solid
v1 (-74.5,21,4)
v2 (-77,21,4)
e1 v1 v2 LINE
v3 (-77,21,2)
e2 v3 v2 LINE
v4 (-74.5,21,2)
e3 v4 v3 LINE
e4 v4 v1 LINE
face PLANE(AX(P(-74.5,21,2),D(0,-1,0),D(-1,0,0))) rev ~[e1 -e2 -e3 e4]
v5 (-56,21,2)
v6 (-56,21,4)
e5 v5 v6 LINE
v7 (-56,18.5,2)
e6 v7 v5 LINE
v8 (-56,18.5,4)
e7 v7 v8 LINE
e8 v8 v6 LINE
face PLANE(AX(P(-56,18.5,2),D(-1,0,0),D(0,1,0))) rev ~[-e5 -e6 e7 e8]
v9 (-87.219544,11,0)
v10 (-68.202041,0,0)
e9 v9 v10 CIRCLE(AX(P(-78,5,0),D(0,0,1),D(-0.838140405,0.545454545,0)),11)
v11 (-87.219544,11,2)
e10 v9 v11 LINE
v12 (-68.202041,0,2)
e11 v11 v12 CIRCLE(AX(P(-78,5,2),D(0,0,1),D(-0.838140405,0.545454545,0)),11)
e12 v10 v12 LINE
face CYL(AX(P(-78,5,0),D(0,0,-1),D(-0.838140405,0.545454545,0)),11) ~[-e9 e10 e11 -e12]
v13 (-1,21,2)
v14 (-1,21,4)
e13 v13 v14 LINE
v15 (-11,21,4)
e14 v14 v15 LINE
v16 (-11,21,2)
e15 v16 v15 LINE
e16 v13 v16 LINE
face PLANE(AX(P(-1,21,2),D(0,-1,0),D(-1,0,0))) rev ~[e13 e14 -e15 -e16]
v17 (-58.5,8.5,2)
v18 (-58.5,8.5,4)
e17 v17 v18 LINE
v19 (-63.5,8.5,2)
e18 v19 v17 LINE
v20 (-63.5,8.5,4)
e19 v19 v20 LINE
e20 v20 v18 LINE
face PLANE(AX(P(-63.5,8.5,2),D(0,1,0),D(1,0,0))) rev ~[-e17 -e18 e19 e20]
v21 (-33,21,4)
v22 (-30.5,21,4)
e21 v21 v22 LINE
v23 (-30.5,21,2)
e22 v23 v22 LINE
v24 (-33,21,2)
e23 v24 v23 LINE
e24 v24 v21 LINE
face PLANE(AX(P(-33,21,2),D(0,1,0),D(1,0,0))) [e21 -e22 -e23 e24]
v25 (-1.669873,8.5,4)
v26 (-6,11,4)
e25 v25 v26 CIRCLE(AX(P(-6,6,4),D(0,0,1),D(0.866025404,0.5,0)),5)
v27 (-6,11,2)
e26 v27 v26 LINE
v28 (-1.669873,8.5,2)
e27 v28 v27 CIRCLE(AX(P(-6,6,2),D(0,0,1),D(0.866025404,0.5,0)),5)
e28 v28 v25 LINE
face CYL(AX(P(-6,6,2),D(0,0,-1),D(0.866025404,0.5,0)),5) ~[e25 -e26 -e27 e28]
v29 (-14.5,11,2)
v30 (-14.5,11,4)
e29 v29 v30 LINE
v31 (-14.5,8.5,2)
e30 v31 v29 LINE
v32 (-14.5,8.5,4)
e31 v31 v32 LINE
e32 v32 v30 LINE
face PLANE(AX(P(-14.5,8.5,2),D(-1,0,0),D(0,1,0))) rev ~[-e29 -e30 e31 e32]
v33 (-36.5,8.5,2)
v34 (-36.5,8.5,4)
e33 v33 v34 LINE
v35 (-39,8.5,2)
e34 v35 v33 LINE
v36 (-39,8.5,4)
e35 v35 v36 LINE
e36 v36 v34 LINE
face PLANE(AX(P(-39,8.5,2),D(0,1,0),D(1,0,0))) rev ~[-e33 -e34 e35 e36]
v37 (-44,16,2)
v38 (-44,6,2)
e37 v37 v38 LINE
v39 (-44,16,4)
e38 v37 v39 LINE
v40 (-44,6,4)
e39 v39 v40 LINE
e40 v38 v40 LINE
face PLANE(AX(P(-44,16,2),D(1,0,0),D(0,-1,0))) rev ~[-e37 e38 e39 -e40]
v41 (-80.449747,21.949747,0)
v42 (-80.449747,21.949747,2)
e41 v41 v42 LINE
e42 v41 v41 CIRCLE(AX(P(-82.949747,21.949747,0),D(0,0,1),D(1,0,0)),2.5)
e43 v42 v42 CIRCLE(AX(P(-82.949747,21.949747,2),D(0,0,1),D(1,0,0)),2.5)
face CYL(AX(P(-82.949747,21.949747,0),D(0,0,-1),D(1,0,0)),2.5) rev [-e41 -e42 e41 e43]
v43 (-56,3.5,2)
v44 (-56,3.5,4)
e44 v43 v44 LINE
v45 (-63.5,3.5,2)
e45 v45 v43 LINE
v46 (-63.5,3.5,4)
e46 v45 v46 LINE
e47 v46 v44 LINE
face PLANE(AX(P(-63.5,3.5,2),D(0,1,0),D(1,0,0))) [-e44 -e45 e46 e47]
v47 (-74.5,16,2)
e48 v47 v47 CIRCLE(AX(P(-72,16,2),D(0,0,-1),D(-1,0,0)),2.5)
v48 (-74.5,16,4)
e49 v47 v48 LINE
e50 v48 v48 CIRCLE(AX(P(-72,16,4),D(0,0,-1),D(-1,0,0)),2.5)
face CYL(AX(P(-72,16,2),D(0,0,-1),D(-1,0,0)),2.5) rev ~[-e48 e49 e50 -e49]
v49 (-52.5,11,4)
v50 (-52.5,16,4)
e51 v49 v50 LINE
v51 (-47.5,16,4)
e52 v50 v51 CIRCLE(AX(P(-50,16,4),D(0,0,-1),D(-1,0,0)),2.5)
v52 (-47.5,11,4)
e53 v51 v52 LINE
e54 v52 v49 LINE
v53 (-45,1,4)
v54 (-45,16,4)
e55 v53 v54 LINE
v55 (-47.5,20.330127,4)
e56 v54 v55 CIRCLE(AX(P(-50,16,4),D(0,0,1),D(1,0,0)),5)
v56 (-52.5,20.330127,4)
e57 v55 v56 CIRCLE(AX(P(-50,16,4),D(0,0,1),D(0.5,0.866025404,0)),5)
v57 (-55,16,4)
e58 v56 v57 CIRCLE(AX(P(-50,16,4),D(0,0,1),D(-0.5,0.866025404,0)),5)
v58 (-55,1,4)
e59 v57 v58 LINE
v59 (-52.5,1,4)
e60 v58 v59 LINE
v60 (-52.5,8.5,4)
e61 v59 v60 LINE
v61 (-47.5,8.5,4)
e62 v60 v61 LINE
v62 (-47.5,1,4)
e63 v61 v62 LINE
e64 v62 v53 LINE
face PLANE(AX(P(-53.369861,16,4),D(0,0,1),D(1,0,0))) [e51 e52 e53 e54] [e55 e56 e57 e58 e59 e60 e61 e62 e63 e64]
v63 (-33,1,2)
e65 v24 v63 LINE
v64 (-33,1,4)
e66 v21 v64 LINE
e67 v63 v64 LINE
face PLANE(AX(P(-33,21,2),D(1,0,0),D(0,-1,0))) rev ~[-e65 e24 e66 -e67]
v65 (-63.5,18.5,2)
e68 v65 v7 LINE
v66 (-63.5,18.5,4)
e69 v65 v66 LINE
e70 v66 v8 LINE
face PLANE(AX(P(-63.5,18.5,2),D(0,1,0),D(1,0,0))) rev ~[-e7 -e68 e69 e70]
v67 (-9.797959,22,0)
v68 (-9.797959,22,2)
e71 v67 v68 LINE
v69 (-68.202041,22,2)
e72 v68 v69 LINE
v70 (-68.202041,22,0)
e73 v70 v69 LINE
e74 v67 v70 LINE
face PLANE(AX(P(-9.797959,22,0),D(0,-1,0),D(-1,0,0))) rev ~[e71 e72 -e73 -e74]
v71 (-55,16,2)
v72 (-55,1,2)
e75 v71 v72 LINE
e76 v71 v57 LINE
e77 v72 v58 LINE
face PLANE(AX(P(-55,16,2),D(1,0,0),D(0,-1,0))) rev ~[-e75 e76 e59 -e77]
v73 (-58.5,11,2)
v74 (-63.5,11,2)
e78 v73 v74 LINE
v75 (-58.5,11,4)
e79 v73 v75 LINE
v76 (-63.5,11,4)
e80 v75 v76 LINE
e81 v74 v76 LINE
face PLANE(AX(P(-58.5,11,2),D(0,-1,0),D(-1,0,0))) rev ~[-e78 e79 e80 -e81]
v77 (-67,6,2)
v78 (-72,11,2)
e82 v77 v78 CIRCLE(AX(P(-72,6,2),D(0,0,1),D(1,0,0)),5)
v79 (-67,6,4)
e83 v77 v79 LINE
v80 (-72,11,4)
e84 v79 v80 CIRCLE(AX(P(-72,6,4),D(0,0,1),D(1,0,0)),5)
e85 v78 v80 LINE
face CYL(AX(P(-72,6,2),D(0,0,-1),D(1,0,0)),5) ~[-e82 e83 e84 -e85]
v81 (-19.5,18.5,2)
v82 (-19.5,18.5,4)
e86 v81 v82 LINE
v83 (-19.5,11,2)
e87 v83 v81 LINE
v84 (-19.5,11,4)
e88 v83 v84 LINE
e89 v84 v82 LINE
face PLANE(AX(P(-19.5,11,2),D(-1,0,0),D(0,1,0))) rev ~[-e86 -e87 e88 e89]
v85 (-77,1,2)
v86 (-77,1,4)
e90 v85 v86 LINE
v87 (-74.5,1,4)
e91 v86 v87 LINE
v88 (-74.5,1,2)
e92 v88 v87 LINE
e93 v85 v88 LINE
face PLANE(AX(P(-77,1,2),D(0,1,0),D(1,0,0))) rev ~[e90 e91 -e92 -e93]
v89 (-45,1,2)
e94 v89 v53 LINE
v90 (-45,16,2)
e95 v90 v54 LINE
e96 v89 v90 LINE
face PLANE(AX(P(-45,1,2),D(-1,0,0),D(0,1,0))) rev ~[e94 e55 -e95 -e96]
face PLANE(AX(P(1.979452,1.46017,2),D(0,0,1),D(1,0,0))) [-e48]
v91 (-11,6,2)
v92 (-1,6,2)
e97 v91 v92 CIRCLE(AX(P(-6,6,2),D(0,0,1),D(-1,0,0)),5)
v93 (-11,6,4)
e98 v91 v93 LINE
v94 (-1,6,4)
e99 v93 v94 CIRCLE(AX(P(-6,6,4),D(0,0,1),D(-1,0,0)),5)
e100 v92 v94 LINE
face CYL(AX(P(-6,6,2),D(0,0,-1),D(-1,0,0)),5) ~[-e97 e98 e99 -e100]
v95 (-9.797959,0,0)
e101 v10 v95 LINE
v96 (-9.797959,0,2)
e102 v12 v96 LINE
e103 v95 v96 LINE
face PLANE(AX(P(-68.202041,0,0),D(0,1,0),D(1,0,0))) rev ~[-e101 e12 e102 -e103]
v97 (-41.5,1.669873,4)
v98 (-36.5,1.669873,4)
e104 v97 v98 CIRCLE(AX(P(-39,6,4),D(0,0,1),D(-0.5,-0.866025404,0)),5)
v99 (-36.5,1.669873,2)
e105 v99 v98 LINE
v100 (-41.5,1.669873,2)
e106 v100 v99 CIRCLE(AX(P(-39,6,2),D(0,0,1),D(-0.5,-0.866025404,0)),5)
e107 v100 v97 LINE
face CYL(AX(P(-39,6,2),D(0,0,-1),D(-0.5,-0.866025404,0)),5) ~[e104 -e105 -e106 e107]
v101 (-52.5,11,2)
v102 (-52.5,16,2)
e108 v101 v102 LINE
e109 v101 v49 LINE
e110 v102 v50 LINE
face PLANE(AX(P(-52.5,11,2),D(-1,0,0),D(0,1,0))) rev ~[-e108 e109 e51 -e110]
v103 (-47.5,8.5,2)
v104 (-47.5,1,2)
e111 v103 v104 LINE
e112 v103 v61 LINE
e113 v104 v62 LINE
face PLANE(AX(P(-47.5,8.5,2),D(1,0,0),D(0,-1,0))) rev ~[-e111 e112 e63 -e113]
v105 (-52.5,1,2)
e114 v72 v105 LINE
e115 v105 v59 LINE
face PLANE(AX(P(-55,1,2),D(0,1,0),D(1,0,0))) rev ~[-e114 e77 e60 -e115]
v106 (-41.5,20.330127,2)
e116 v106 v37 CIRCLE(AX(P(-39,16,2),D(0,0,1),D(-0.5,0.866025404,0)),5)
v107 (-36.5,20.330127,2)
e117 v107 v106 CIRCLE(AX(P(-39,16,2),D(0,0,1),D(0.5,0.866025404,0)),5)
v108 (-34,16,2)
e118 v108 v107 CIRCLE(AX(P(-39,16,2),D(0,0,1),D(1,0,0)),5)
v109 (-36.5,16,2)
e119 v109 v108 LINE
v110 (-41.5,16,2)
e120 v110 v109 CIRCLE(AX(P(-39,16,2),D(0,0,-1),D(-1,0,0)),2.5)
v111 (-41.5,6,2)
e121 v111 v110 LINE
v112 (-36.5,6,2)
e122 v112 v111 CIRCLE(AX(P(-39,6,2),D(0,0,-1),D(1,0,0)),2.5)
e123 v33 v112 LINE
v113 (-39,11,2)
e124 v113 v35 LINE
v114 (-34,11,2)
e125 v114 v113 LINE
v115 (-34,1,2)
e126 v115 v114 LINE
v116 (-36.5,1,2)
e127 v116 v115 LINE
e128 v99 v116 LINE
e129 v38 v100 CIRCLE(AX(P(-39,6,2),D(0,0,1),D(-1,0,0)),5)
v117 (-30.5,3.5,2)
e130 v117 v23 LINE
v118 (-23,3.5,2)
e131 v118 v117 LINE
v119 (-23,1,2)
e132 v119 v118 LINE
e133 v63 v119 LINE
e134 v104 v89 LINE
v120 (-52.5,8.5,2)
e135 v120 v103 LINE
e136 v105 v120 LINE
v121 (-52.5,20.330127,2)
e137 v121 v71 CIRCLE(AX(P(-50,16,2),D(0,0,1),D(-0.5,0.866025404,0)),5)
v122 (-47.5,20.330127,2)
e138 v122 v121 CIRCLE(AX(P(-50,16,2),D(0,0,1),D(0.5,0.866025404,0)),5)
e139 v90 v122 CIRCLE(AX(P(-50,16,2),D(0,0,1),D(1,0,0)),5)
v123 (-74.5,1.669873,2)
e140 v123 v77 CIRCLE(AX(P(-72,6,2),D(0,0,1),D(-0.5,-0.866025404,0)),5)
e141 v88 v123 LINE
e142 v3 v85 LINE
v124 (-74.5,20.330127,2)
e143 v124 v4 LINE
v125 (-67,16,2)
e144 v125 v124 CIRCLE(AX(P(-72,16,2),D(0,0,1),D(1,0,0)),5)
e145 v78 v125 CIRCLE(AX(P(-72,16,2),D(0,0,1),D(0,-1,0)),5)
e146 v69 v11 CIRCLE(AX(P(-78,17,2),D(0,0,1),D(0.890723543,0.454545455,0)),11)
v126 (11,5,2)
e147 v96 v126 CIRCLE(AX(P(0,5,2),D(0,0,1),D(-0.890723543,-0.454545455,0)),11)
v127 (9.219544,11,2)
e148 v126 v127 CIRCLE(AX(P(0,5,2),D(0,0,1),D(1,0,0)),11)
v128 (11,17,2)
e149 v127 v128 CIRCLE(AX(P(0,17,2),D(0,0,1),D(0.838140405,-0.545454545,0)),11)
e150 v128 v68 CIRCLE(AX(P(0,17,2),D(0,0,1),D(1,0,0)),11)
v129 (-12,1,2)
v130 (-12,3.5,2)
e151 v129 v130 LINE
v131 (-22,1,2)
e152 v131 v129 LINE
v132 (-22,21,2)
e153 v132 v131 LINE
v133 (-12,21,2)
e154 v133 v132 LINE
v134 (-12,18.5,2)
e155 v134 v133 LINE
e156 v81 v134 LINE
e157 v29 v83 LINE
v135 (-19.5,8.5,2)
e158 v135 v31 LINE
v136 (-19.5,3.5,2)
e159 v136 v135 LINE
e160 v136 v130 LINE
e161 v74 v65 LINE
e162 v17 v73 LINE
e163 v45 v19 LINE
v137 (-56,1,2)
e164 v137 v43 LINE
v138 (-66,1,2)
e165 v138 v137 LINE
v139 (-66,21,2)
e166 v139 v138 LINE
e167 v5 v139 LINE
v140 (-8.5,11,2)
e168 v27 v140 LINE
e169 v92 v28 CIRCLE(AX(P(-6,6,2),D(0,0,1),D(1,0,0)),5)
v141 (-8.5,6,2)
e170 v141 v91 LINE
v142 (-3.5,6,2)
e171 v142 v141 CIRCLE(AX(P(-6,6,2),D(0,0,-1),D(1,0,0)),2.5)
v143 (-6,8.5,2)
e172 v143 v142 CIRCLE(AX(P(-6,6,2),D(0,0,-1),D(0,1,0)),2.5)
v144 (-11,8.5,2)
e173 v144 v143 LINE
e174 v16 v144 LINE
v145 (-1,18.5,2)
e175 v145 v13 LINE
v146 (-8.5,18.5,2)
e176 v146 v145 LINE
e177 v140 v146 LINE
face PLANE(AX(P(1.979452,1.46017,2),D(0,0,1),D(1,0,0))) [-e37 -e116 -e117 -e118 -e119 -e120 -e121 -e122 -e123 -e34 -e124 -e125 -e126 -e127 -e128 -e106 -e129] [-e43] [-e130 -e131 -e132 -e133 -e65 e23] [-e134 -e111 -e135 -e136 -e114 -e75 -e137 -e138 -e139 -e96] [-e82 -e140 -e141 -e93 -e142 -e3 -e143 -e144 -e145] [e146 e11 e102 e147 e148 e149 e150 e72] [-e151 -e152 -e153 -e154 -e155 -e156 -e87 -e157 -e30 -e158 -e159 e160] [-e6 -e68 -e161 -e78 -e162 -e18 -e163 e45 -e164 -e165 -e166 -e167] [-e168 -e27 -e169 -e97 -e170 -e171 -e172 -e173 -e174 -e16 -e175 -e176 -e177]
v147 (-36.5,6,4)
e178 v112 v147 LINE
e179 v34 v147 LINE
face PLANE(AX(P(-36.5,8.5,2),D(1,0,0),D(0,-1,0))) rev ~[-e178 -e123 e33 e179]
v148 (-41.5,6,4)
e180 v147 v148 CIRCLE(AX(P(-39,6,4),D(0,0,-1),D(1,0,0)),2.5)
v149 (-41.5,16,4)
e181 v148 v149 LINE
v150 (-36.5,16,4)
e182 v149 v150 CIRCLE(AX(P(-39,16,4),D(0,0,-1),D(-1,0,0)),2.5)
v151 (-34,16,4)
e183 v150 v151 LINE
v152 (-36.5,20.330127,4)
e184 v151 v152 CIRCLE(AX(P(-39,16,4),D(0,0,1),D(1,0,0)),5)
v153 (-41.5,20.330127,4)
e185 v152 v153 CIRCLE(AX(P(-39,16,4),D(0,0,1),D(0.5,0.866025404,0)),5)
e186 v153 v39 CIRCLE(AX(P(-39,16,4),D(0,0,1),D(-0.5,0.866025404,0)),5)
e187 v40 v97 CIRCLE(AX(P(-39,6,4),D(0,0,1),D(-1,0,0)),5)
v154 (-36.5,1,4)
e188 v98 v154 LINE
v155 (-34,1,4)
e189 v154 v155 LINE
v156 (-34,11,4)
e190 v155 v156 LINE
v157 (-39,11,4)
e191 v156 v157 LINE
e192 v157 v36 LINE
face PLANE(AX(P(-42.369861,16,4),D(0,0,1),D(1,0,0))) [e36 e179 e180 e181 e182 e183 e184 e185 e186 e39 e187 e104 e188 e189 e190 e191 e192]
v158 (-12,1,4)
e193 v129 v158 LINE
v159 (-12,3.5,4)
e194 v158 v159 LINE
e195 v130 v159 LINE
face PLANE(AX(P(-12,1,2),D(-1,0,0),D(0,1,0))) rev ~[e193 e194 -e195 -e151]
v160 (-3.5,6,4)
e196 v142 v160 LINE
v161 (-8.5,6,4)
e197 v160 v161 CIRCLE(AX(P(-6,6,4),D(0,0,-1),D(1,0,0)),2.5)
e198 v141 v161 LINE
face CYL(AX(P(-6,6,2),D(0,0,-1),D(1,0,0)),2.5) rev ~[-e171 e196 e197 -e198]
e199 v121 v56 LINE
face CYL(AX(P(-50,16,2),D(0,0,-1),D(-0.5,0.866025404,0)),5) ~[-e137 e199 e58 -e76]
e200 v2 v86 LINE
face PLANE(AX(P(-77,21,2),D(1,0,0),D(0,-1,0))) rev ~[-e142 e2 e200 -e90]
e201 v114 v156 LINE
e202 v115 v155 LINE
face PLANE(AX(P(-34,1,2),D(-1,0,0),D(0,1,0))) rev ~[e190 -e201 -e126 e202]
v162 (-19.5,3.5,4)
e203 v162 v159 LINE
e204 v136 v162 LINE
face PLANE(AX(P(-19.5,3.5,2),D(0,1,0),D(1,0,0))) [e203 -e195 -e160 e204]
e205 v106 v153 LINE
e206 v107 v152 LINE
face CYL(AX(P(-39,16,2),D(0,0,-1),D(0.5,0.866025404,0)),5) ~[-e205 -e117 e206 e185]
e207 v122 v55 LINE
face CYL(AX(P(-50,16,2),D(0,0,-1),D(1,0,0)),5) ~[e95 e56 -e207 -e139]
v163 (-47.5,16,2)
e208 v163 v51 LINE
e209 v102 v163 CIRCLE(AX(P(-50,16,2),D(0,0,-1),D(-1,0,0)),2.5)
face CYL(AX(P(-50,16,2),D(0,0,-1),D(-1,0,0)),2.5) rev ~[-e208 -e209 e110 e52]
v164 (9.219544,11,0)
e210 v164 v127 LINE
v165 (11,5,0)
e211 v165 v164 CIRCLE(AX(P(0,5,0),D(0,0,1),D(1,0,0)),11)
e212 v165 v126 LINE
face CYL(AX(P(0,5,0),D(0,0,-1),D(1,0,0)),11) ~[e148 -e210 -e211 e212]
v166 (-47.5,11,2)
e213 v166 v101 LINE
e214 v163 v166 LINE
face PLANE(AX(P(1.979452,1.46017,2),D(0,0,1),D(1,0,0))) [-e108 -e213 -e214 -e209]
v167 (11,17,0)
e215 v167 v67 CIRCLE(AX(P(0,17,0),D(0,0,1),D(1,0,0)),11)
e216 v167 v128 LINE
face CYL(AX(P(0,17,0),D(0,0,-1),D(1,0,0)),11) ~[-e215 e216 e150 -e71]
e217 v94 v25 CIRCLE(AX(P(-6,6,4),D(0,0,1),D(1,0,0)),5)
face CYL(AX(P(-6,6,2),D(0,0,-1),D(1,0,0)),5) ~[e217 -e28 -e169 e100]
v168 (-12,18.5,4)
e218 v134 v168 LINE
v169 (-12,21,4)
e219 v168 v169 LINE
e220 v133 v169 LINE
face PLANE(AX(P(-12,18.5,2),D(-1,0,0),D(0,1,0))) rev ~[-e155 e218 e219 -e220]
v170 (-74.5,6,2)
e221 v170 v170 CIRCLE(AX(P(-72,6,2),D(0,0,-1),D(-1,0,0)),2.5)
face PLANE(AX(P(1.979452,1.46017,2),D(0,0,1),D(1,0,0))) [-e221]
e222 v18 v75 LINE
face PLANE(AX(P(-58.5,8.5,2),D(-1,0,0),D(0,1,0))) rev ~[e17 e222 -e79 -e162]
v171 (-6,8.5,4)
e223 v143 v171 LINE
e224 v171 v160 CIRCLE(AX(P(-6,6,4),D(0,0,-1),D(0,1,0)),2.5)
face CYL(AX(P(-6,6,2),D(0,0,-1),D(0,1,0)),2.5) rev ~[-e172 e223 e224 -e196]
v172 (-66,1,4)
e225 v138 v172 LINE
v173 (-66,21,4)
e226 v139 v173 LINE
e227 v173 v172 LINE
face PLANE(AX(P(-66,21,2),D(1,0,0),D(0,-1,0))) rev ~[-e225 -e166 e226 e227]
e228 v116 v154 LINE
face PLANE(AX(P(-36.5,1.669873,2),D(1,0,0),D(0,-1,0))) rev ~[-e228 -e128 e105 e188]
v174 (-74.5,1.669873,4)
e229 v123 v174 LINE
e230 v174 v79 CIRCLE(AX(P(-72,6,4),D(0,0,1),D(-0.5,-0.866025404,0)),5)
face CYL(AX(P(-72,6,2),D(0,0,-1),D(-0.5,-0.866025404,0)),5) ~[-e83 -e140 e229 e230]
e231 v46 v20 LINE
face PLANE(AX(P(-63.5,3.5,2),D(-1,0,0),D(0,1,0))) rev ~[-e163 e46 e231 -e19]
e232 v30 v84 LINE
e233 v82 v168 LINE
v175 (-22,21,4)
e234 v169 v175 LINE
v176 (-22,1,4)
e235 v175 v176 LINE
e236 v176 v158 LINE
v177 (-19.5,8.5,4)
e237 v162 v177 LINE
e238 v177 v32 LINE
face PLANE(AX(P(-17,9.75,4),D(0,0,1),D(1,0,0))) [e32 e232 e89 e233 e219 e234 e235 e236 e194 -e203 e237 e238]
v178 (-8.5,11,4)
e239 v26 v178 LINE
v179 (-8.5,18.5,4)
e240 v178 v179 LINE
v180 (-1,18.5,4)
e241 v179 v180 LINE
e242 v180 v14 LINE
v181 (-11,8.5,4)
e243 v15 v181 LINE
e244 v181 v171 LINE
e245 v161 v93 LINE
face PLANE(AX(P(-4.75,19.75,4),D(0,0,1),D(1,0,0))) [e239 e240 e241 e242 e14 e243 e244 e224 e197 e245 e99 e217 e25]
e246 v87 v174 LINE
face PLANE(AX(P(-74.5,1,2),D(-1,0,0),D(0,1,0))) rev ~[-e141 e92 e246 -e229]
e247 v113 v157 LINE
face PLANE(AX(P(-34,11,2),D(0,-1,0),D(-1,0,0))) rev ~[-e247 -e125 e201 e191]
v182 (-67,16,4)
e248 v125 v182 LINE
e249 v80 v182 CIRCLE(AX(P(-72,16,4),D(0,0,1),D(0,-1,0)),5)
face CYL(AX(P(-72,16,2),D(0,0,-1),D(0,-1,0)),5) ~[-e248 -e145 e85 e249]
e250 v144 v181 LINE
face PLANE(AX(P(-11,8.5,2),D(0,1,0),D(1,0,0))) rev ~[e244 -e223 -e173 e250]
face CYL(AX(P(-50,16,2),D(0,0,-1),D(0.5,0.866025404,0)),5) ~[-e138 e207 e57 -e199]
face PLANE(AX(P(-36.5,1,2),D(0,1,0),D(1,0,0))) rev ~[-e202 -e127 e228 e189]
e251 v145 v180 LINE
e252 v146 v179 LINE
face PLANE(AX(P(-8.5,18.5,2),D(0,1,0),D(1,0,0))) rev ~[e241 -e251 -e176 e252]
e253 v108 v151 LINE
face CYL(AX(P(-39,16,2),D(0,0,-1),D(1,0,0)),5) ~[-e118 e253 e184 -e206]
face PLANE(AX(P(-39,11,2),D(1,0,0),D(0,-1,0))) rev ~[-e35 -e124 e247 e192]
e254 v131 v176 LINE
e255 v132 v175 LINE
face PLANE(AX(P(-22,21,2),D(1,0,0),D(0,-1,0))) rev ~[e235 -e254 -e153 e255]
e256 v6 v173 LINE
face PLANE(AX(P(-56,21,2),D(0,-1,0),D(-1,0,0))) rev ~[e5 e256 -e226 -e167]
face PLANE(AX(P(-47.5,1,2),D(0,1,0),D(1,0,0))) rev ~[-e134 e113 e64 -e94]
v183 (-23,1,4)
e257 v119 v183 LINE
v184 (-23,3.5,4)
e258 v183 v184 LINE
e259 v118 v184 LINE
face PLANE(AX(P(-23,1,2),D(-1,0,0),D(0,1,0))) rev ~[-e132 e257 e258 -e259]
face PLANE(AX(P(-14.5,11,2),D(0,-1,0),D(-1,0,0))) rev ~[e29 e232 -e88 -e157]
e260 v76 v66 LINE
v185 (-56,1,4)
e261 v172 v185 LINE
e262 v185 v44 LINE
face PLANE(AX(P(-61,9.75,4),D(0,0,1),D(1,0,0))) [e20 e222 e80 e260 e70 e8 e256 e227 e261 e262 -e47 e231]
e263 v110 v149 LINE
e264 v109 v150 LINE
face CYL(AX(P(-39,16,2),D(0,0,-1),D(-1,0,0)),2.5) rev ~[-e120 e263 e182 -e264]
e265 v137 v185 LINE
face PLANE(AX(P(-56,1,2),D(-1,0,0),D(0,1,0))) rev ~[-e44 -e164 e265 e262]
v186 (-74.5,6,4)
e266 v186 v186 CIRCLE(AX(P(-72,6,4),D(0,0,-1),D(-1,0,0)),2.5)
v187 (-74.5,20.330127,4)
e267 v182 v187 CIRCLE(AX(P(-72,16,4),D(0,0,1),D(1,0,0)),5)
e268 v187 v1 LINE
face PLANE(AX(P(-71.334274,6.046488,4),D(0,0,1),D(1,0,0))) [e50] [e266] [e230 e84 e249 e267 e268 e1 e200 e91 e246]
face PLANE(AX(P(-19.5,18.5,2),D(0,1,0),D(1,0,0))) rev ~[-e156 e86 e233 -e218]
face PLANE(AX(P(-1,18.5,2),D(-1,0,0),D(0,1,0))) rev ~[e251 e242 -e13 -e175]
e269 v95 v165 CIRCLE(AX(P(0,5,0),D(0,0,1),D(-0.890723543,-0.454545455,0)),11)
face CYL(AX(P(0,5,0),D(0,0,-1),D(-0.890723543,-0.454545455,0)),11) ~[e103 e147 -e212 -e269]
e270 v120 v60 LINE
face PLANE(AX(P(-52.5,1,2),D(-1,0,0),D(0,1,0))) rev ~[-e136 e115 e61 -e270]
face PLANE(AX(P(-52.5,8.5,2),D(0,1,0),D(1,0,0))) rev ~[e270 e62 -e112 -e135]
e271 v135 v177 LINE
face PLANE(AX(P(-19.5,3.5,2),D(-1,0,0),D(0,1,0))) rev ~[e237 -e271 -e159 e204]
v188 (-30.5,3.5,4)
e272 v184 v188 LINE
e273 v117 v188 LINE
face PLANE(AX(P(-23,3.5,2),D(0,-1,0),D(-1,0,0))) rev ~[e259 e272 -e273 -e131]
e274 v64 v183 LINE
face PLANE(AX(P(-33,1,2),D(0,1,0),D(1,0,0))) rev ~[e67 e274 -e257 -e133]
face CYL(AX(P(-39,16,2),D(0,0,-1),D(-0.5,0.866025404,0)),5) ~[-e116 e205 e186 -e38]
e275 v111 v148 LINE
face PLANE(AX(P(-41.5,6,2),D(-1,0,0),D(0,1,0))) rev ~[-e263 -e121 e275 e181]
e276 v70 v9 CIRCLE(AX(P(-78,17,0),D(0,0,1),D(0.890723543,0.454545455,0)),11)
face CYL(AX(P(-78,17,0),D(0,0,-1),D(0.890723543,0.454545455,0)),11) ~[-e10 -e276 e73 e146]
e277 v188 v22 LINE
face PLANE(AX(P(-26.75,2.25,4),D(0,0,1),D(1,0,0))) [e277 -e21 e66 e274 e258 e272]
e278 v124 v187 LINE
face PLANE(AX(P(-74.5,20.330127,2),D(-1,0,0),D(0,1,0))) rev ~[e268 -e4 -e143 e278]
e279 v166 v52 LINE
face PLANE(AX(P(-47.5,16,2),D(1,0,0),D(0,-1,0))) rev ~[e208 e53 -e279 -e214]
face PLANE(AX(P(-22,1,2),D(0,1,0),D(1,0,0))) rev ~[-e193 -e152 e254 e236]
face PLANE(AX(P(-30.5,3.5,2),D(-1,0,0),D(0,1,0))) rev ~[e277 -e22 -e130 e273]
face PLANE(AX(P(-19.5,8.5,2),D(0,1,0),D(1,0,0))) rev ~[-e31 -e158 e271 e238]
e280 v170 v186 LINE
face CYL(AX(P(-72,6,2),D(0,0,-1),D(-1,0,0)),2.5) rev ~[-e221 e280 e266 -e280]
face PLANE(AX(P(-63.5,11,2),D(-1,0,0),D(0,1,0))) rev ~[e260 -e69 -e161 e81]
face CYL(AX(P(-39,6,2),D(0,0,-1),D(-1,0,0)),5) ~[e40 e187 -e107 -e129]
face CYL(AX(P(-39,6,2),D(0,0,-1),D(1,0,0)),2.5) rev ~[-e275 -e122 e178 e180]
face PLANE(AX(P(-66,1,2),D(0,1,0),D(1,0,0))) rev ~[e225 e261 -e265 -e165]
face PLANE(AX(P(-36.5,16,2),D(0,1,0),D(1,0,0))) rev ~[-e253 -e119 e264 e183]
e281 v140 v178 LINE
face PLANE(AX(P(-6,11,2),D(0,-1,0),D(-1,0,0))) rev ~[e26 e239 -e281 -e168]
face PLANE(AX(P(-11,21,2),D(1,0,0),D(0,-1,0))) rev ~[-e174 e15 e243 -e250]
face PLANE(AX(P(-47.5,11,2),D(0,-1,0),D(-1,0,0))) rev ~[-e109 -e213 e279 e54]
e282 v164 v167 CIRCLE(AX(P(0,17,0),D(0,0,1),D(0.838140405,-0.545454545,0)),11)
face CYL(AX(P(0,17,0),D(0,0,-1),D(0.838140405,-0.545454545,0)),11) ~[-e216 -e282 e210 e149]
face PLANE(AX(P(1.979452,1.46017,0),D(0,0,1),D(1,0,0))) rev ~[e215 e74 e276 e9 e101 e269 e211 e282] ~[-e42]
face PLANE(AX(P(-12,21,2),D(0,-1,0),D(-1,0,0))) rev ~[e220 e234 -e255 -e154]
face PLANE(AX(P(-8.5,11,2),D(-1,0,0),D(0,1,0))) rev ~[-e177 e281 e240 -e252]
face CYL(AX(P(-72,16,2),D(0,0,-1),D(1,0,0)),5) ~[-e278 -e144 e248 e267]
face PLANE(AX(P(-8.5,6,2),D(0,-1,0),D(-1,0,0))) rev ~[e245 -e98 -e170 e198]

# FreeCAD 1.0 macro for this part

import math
import FreeCAD as App
import Part
import Sketcher

doc = App.newDocument("Part")
body = doc.addObject("PartDesign::Body", "Body")

sketch1 = body.newObject("Sketcher::SketchObject", "Sketch")
sketch1.AttachmentSupport = (doc.getObject("XY_Plane"), [""])
sketch1.MapMode = "FlatFace"
sketch1.addGeometry(Part.ArcOfCircle(Part.Circle(App.Vector(0, 17, 0), App.Vector(0, 0, 1), 11), math.radians(0), math.radians(153)), False)
sketch1.addGeometry(Part.LineSegment(App.Vector(-9.8, 22, 0), App.Vector(-68.2, 22, 0)), False)
sketch1.addGeometry(Part.ArcOfCircle(Part.Circle(App.Vector(-78, 17, 0), App.Vector(0, 0, 1), 11), math.radians(27), math.radians(213)), False)
sketch1.addGeometry(Part.ArcOfCircle(Part.Circle(App.Vector(-78, 5, 0), App.Vector(0, 0, 1), 11), math.radians(147), math.radians(333)), False)
sketch1.addGeometry(Part.LineSegment(App.Vector(-68.2, 0, 0), App.Vector(-9.8, 0, 0)), False)
sketch1.addGeometry(Part.ArcOfCircle(Part.Circle(App.Vector(0, 5, 0), App.Vector(0, 0, 1), 11), math.radians(-153), math.radians(0)), False)
sketch1.addGeometry(Part.ArcOfCircle(Part.Circle(App.Vector(0, 5, 0), App.Vector(0, 0, 1), 11), math.radians(0), math.radians(33)), False)
sketch1.addGeometry(Part.ArcOfCircle(Part.Circle(App.Vector(0, 17, 0), App.Vector(0, 0, 1), 11), math.radians(-33), math.radians(0)), False)
sketch1.addGeometry(Part.Circle(App.Vector(-82.9, 21.9, 0), App.Vector(0, 0, 1), 2.5), False)
sketch1.addConstraint(Sketcher.Constraint("Coincident", 0, 2, 1, 1))
sketch1.addConstraint(Sketcher.Constraint("Coincident", 1, 2, 2, 1))
sketch1.addConstraint(Sketcher.Constraint("Coincident", 2, 2, 3, 1))
sketch1.addConstraint(Sketcher.Constraint("Coincident", 3, 2, 4, 1))
sketch1.addConstraint(Sketcher.Constraint("Coincident", 4, 2, 5, 1))
sketch1.addConstraint(Sketcher.Constraint("Tangent", 5, 2, 6, 1))
sketch1.addConstraint(Sketcher.Constraint("Coincident", 6, 2, 7, 1))
sketch1.addConstraint(Sketcher.Constraint("Tangent", 7, 2, 0, 1))
sketch1.addConstraint(Sketcher.Constraint("Horizontal", 1))
sketch1.addConstraint(Sketcher.Constraint("Horizontal", 4))
sketch1.addConstraint(Sketcher.Constraint("Equal", 0, 2))
sketch1.addConstraint(Sketcher.Constraint("Equal", 2, 3))
sketch1.addConstraint(Sketcher.Constraint("Equal", 3, 5))
sketch1.addConstraint(Sketcher.Constraint("Equal", 5, 6))
sketch1.addConstraint(Sketcher.Constraint("Equal", 6, 7))
sketch1.addConstraint(Sketcher.Constraint("PointOnObject", 0, 3, -2))
sketch1.addConstraint(Sketcher.Constraint("PointOnObject", 5, 3, -2))
sketch1.addConstraint(Sketcher.Constraint("PointOnObject", 3, 2, -1))
sketch1.addConstraint(Sketcher.Constraint("Horizontal", 0, 3, 2, 3))
sketch1.addConstraint(Sketcher.Constraint("Horizontal", 3, 3, 5, 3))
sketch1.addConstraint(Sketcher.Constraint("Horizontal", 6, 3, 5, 2))
sketch1.addConstraint(Sketcher.Constraint("Horizontal", 2, 2, 6, 2))
sketch1.addConstraint(Sketcher.Constraint("Horizontal", 2, 3, 7, 2))
sketch1.addConstraint(Sketcher.Constraint("Vertical", 1, 2, 3, 2))
sketch1.addConstraint(Sketcher.Constraint("Diameter", 8, 5.0))
sketch1.addConstraint(Sketcher.Constraint("Radius", 0, 11.0))
sketch1.addConstraint(Sketcher.Constraint("DistanceY", -1, 1, 0, 3, 17.0))
sketch1.addConstraint(Sketcher.Constraint("DistanceX", 2, 3, -1, 1, 78.0))
sketch1.addConstraint(Sketcher.Constraint("DistanceY", -1, 1, 3, 3, 5.0))
sketch1.addConstraint(Sketcher.Constraint("DistanceX", 8, 3, -1, 1, 82.949747))
sketch1.addConstraint(Sketcher.Constraint("DistanceY", -1, 1, 8, 3, 21.949747))
pad1 = body.newObject("PartDesign::Pad", "Pad")
pad1.Profile = sketch1
pad1.Length = 2

sketch2 = body.newObject("Sketcher::SketchObject", "Sketch001")
sketch2.AttachmentSupport = (doc.getObject("XY_Plane"), [""])
sketch2.MapMode = "FlatFace"
sketch2.AttachmentOffset = App.Placement(App.Vector(0, 0, 2), App.Rotation())
sketch2.addGeometry(Part.LineSegment(App.Vector(-1, 18.5, 0), App.Vector(-1, 21, 0)), False)
sketch2.addGeometry(Part.LineSegment(App.Vector(-1, 21, 0), App.Vector(-11, 21, 0)), False)
sketch2.addGeometry(Part.LineSegment(App.Vector(-11, 21, 0), App.Vector(-11, 8.5, 0)), False)
sketch2.addGeometry(Part.LineSegment(App.Vector(-11, 8.5, 0), App.Vector(-6, 8.5, 0)), False)
sketch2.addGeometry(Part.ArcOfCircle(Part.Circle(App.Vector(-6, 6, 0), App.Vector(0, 0, 1), 2.5), math.radians(0), math.radians(90)), False)
sketch2.addGeometry(Part.ArcOfCircle(Part.Circle(App.Vector(-6, 6, 0), App.Vector(0, 0, 1), 2.5), math.radians(180), math.radians(360)), False)
sketch2.addGeometry(Part.LineSegment(App.Vector(-8.5, 6, 0), App.Vector(-11, 6, 0)), False)
sketch2.addGeometry(Part.ArcOfCircle(Part.Circle(App.Vector(-6, 6, 0), App.Vector(0, 0, 1), 5), math.radians(180), math.radians(360)), False)
sketch2.addGeometry(Part.ArcOfCircle(Part.Circle(App.Vector(-6, 6, 0), App.Vector(0, 0, 1), 5), math.radians(0), math.radians(30)), False)
sketch2.addGeometry(Part.ArcOfCircle(Part.Circle(App.Vector(-6, 6, 0), App.Vector(0, 0, 1), 5), math.radians(30), math.radians(90)), False)
sketch2.addGeometry(Part.LineSegment(App.Vector(-6, 11, 0), App.Vector(-8.5, 11, 0)), False)
sketch2.addGeometry(Part.LineSegment(App.Vector(-8.5, 11, 0), App.Vector(-8.5, 18.5, 0)), False)
sketch2.addGeometry(Part.LineSegment(App.Vector(-8.5, 18.5, 0), App.Vector(-1, 18.5, 0)), False)
sketch2.addGeometry(Part.LineSegment(App.Vector(-14.5, 8.5, 0), App.Vector(-14.5, 11, 0)), False)
sketch2.addGeometry(Part.LineSegment(App.Vector(-14.5, 11, 0), App.Vector(-19.5, 11, 0)), False)
sketch2.addGeometry(Part.LineSegment(App.Vector(-19.5, 11, 0), App.Vector(-19.5, 18.5, 0)), False)
sketch2.addGeometry(Part.LineSegment(App.Vector(-19.5, 18.5, 0), App.Vector(-12, 18.5, 0)), False)
sketch2.addGeometry(Part.LineSegment(App.Vector(-12, 18.5, 0), App.Vector(-12, 21, 0)), False)
sketch2.addGeometry(Part.LineSegment(App.Vector(-12, 21, 0), App.Vector(-22, 21, 0)), False)
sketch2.addGeometry(Part.LineSegment(App.Vector(-22, 21, 0), App.Vector(-22, 1, 0)), False)
sketch2.addGeometry(Part.LineSegment(App.Vector(-22, 1, 0), App.Vector(-12, 1, 0)), False)
sketch2.addGeometry(Part.LineSegment(App.Vector(-12, 1, 0), App.Vector(-12, 3.5, 0)), False)
sketch2.addGeometry(Part.LineSegment(App.Vector(-12, 3.5, 0), App.Vector(-19.5, 3.5, 0)), False)
sketch2.addGeometry(Part.LineSegment(App.Vector(-19.5, 3.5, 0), App.Vector(-19.5, 8.5, 0)), False)
sketch2.addGeometry(Part.LineSegment(App.Vector(-19.5, 8.5, 0), App.Vector(-14.5, 8.5, 0)), False)
sketch2.addGeometry(Part.LineSegment(App.Vector(-23, 1, 0), App.Vector(-23, 3.5, 0)), False)
sketch2.addGeometry(Part.LineSegment(App.Vector(-23, 3.5, 0), App.Vector(-30.5, 3.5, 0)), False)
sketch2.addGeometry(Part.LineSegment(App.Vector(-30.5, 3.5, 0), App.Vector(-30.5, 21, 0)), False)
sketch2.addGeometry(Part.LineSegment(App.Vector(-30.5, 21, 0), App.Vector(-33, 21, 0)), False)
sketch2.addGeometry(Part.LineSegment(App.Vector(-33, 21, 0), App.Vector(-33, 1, 0)), False)
sketch2.addGeometry(Part.LineSegment(App.Vector(-33, 1, 0), App.Vector(-23, 1, 0)), False)
sketch2.addGeometry(Part.ArcOfCircle(Part.Circle(App.Vector(-39, 16, 0), App.Vector(0, 0, 1), 5), math.radians(120), math.radians(180)), False)
sketch2.addGeometry(Part.LineSegment(App.Vector(-44, 16, 0), App.Vector(-44, 6, 0)), False)
sketch2.addGeometry(Part.ArcOfCircle(Part.Circle(App.Vector(-39, 6, 0), App.Vector(0, 0, 1), 5), math.radians(180), math.radians(240)), False)
sketch2.addGeometry(Part.ArcOfCircle(Part.Circle(App.Vector(-39, 6, 0), App.Vector(0, 0, 1), 5), math.radians(-120), math.radians(-60)), False)
sketch2.addGeometry(Part.LineSegment(App.Vector(-36.5, 1.7, 0), App.Vector(-36.5, 1, 0)), False)
sketch2.addGeometry(Part.LineSegment(App.Vector(-36.5, 1, 0), App.Vector(-34, 1, 0)), False)
sketch2.addGeometry(Part.LineSegment(App.Vector(-34, 1, 0), App.Vector(-34, 11, 0)), False)
sketch2.addGeometry(Part.LineSegment(App.Vector(-34, 11, 0), App.Vector(-39, 11, 0)), False)
sketch2.addGeometry(Part.LineSegment(App.Vector(-39, 11, 0), App.Vector(-39, 8.5, 0)), False)
sketch2.addGeometry(Part.LineSegment(App.Vector(-39, 8.5, 0), App.Vector(-36.5, 8.5, 0)), False)
sketch2.addGeometry(Part.LineSegment(App.Vector(-36.5, 8.5, 0), App.Vector(-36.5, 6, 0)), False)
sketch2.addGeometry(Part.ArcOfCircle(Part.Circle(App.Vector(-39, 6, 0), App.Vector(0, 0, 1), 2.5), math.radians(-180), math.radians(0)), False)
sketch2.addGeometry(Part.LineSegment(App.Vector(-41.5, 6, 0), App.Vector(-41.5, 16, 0)), False)
sketch2.addGeometry(Part.ArcOfCircle(Part.Circle(App.Vector(-39, 16, 0), App.Vector(0, 0, 1), 2.5), math.radians(0), math.radians(180)), False)
sketch2.addGeometry(Part.LineSegment(App.Vector(-36.5, 16, 0), App.Vector(-34, 16, 0)), False)
sketch2.addGeometry(Part.ArcOfCircle(Part.Circle(App.Vector(-39, 16, 0), App.Vector(0, 0, 1), 5), math.radians(0), math.radians(60)), False)
sketch2.addGeometry(Part.ArcOfCircle(Part.Circle(App.Vector(-39, 16, 0), App.Vector(0, 0, 1), 5), math.radians(60), math.radians(120)), False)
sketch2.addGeometry(Part.ArcOfCircle(Part.Circle(App.Vector(-50, 16, 0), App.Vector(0, 0, 1), 5), math.radians(120), math.radians(180)), False)
sketch2.addGeometry(Part.LineSegment(App.Vector(-55, 16, 0), App.Vector(-55, 1, 0)), False)
sketch2.addGeometry(Part.LineSegment(App.Vector(-55, 1, 0), App.Vector(-52.5, 1, 0)), False)
sketch2.addGeometry(Part.LineSegment(App.Vector(-52.5, 1, 0), App.Vector(-52.5, 8.5, 0)), False)
sketch2.addGeometry(Part.LineSegment(App.Vector(-52.5, 8.5, 0), App.Vector(-47.5, 8.5, 0)), False)
sketch2.addGeometry(Part.LineSegment(App.Vector(-47.5, 8.5, 0), App.Vector(-47.5, 1, 0)), False)
sketch2.addGeometry(Part.LineSegment(App.Vector(-47.5, 1, 0), App.Vector(-45, 1, 0)), False)
sketch2.addGeometry(Part.LineSegment(App.Vector(-45, 1, 0), App.Vector(-45, 16, 0)), False)
sketch2.addGeometry(Part.ArcOfCircle(Part.Circle(App.Vector(-50, 16, 0), App.Vector(0, 0, 1), 5), math.radians(0), math.radians(60)), False)
sketch2.addGeometry(Part.ArcOfCircle(Part.Circle(App.Vector(-50, 16, 0), App.Vector(0, 0, 1), 5), math.radians(60), math.radians(120)), False)
sketch2.addGeometry(Part.LineSegment(App.Vector(-52.5, 11, 0), App.Vector(-52.5, 16, 0)), False)
sketch2.addGeometry(Part.ArcOfCircle(Part.Circle(App.Vector(-50, 16, 0), App.Vector(0, 0, 1), 2.5), math.radians(0), math.radians(180)), False)
sketch2.addGeometry(Part.LineSegment(App.Vector(-47.5, 16, 0), App.Vector(-47.5, 11, 0)), False)
sketch2.addGeometry(Part.LineSegment(App.Vector(-47.5, 11, 0), App.Vector(-52.5, 11, 0)), False)
sketch2.addGeometry(Part.LineSegment(App.Vector(-58.5, 8.5, 0), App.Vector(-58.5, 11, 0)), False)
sketch2.addGeometry(Part.LineSegment(App.Vector(-58.5, 11, 0), App.Vector(-63.5, 11, 0)), False)
sketch2.addGeometry(Part.LineSegment(App.Vector(-63.5, 11, 0), App.Vector(-63.5, 18.5, 0)), False)
sketch2.addGeometry(Part.LineSegment(App.Vector(-63.5, 18.5, 0), App.Vector(-56, 18.5, 0)), False)
sketch2.addGeometry(Part.LineSegment(App.Vector(-56, 18.5, 0), App.Vector(-56, 21, 0)), False)
sketch2.addGeometry(Part.LineSegment(App.Vector(-56, 21, 0), App.Vector(-66, 21, 0)), False)
sketch2.addGeometry(Part.LineSegment(App.Vector(-66, 21, 0), App.Vector(-66, 1, 0)), False)
sketch2.addGeometry(Part.LineSegment(App.Vector(-66, 1, 0), App.Vector(-56, 1, 0)), False)
sketch2.addGeometry(Part.LineSegment(App.Vector(-56, 1, 0), App.Vector(-56, 3.5, 0)), False)
sketch2.addGeometry(Part.LineSegment(App.Vector(-56, 3.5, 0), App.Vector(-63.5, 3.5, 0)), False)
sketch2.addGeometry(Part.LineSegment(App.Vector(-63.5, 3.5, 0), App.Vector(-63.5, 8.5, 0)), False)
sketch2.addGeometry(Part.LineSegment(App.Vector(-63.5, 8.5, 0), App.Vector(-58.5, 8.5, 0)), False)
sketch2.addGeometry(Part.LineSegment(App.Vector(-77, 1, 0), App.Vector(-74.5, 1, 0)), False)
sketch2.addGeometry(Part.LineSegment(App.Vector(-74.5, 1, 0), App.Vector(-74.5, 1.7, 0)), False)
sketch2.addGeometry(Part.ArcOfCircle(Part.Circle(App.Vector(-72, 6, 0), App.Vector(0, 0, 1), 5), math.radians(-120), math.radians(0)), False)
sketch2.addGeometry(Part.ArcOfCircle(Part.Circle(App.Vector(-72, 6, 0), App.Vector(0, 0, 1), 5), math.radians(0), math.radians(90)), False)
sketch2.addGeometry(Part.ArcOfCircle(Part.Circle(App.Vector(-72, 16, 0), App.Vector(0, 0, 1), 5), math.radians(-90), math.radians(0)), False)
sketch2.addGeometry(Part.ArcOfCircle(Part.Circle(App.Vector(-72, 16, 0), App.Vector(0, 0, 1), 5), math.radians(0), math.radians(120)), False)
sketch2.addGeometry(Part.LineSegment(App.Vector(-74.5, 20.3, 0), App.Vector(-74.5, 21, 0)), False)
sketch2.addGeometry(Part.LineSegment(App.Vector(-74.5, 21, 0), App.Vector(-77, 21, 0)), False)
sketch2.addGeometry(Part.LineSegment(App.Vector(-77, 21, 0), App.Vector(-77, 1, 0)), False)
sketch2.addGeometry(Part.Circle(App.Vector(-72, 6, 0), App.Vector(0, 0, 1), 2.5), False)
sketch2.addGeometry(Part.Circle(App.Vector(-72, 16, 0), App.Vector(0, 0, 1), 2.5), False)
sketch2.addConstraint(Sketcher.Constraint("Coincident", 0, 2, 1, 1))
sketch2.addConstraint(Sketcher.Constraint("Coincident", 1, 2, 2, 1))
sketch2.addConstraint(Sketcher.Constraint("Coincident", 2, 2, 3, 1))
sketch2.addConstraint(Sketcher.Constraint("Tangent", 3, 2, 4, 2))
sketch2.addConstraint(Sketcher.Constraint("Tangent", 4, 1, 5, 2))
sketch2.addConstraint(Sketcher.Constraint("Coincident", 5, 1, 6, 1))
sketch2.addConstraint(Sketcher.Constraint("Coincident", 6, 2, 7, 1))
sketch2.addConstraint(Sketcher.Constraint("Tangent", 7, 2, 8, 1))
sketch2.addConstraint(Sketcher.Constraint("Tangent", 8, 2, 9, 1))
sketch2.addConstraint(Sketcher.Constraint("Tangent", 9, 2, 10, 1))
sketch2.addConstraint(Sketcher.Constraint("Coincident", 10, 2, 11, 1))
sketch2.addConstraint(Sketcher.Constraint("Coincident", 11, 2, 12, 1))
sketch2.addConstraint(Sketcher.Constraint("Coincident", 12, 2, 0, 1))
sketch2.addConstraint(Sketcher.Constraint("Coincident", 13, 2, 14, 1))
sketch2.addConstraint(Sketcher.Constraint("Coincident", 14, 2, 15, 1))
sketch2.addConstraint(Sketcher.Constraint("Coincident", 15, 2, 16, 1))
sketch2.addConstraint(Sketcher.Constraint("Coincident", 16, 2, 17, 1))
sketch2.addConstraint(Sketcher.Constraint("Coincident", 17, 2, 18, 1))
sketch2.addConstraint(Sketcher.Constraint("Coincident", 18, 2, 19, 1))
sketch2.addConstraint(Sketcher.Constraint("Coincident", 19, 2, 20, 1))
sketch2.addConstraint(Sketcher.Constraint("Coincident", 20, 2, 21, 1))
sketch2.addConstraint(Sketcher.Constraint("Coincident", 21, 2, 22, 1))
sketch2.addConstraint(Sketcher.Constraint("Coincident", 22, 2, 23, 1))
sketch2.addConstraint(Sketcher.Constraint("Coincident", 23, 2, 24, 1))
sketch2.addConstraint(Sketcher.Constraint("Coincident", 24, 2, 13, 1))
sketch2.addConstraint(Sketcher.Constraint("Coincident", 25, 2, 26, 1))
sketch2.addConstraint(Sketcher.Constraint("Coincident", 26, 2, 27, 1))
sketch2.addConstraint(Sketcher.Constraint("Coincident", 27, 2, 28, 1))
sketch2.addConstraint(Sketcher.Constraint("Coincident", 28, 2, 29, 1))
sketch2.addConstraint(Sketcher.Constraint("Coincident", 29, 2, 30, 1))
sketch2.addConstraint(Sketcher.Constraint("Coincident", 30, 2, 25, 1))
sketch2.addConstraint(Sketcher.Constraint("Tangent", 31, 2, 32, 1))
sketch2.addConstraint(Sketcher.Constraint("Tangent", 32, 2, 33, 1))
sketch2.addConstraint(Sketcher.Constraint("Tangent", 33, 2, 34, 1))
sketch2.addConstraint(Sketcher.Constraint("Coincident", 34, 2, 35, 1))
sketch2.addConstraint(Sketcher.Constraint("Coincident", 35, 2, 36, 1))
sketch2.addConstraint(Sketcher.Constraint("Coincident", 36, 2, 37, 1))
sketch2.addConstraint(Sketcher.Constraint("Coincident", 37, 2, 38, 1))
sketch2.addConstraint(Sketcher.Constraint("Coincident", 38, 2, 39, 1))
sketch2.addConstraint(Sketcher.Constraint("Coincident", 39, 2, 40, 1))
sketch2.addConstraint(Sketcher.Constraint("Coincident", 40, 2, 41, 1))
sketch2.addConstraint(Sketcher.Constraint("Tangent", 41, 2, 42, 2))
sketch2.addConstraint(Sketcher.Constraint("Tangent", 42, 1, 43, 1))
sketch2.addConstraint(Sketcher.Constraint("Tangent", 43, 2, 44, 2))
sketch2.addConstraint(Sketcher.Constraint("Coincident", 44, 1, 45, 1))
sketch2.addConstraint(Sketcher.Constraint("Coincident", 45, 2, 46, 1))
sketch2.addConstraint(Sketcher.Constraint("Tangent", 46, 2, 47, 1))
sketch2.addConstraint(Sketcher.Constraint("Tangent", 47, 2, 31, 1))
sketch2.addConstraint(Sketcher.Constraint("Tangent", 48, 2, 49, 1))
sketch2.addConstraint(Sketcher.Constraint("Coincident", 49, 2, 50, 1))
sketch2.addConstraint(Sketcher.Constraint("Coincident", 50, 2, 51, 1))
sketch2.addConstraint(Sketcher.Constraint("Coincident", 51, 2, 52, 1))
sketch2.addConstraint(Sketcher.Constraint("Coincident", 52, 2, 53, 1))
sketch2.addConstraint(Sketcher.Constraint("Coincident", 53, 2, 54, 1))
sketch2.addConstraint(Sketcher.Constraint("Coincident", 54, 2, 55, 1))
sketch2.addConstraint(Sketcher.Constraint("Tangent", 55, 2, 56, 1))
sketch2.addConstraint(Sketcher.Constraint("Tangent", 56, 2, 57, 1))
sketch2.addConstraint(Sketcher.Constraint("Tangent", 57, 2, 48, 1))
sketch2.addConstraint(Sketcher.Constraint("Tangent", 58, 2, 59, 2))
sketch2.addConstraint(Sketcher.Constraint("Tangent", 59, 1, 60, 1))
sketch2.addConstraint(Sketcher.Constraint("Coincident", 60, 2, 61, 1))
sketch2.addConstraint(Sketcher.Constraint("Coincident", 61, 2, 58, 1))
sketch2.addConstraint(Sketcher.Constraint("Coincident", 62, 2, 63, 1))
sketch2.addConstraint(Sketcher.Constraint("Coincident", 63, 2, 64, 1))
sketch2.addConstraint(Sketcher.Constraint("Coincident", 64, 2, 65, 1))
sketch2.addConstraint(Sketcher.Constraint("Coincident", 65, 2, 66, 1))
sketch2.addConstraint(Sketcher.Constraint("Coincident", 66, 2, 67, 1))
sketch2.addConstraint(Sketcher.Constraint("Coincident", 67, 2, 68, 1))
sketch2.addConstraint(Sketcher.Constraint("Coincident", 68, 2, 69, 1))
sketch2.addConstraint(Sketcher.Constraint("Coincident", 69, 2, 70, 1))
sketch2.addConstraint(Sketcher.Constraint("Coincident", 70, 2, 71, 1))
sketch2.addConstraint(Sketcher.Constraint("Coincident", 71, 2, 72, 1))
sketch2.addConstraint(Sketcher.Constraint("Coincident", 72, 2, 73, 1))
sketch2.addConstraint(Sketcher.Constraint("Coincident", 73, 2, 62, 1))
sketch2.addConstraint(Sketcher.Constraint("Coincident", 74, 2, 75, 1))
sketch2.addConstraint(Sketcher.Constraint("Coincident", 75, 2, 76, 1))
sketch2.addConstraint(Sketcher.Constraint("Tangent", 76, 2, 77, 1))
sketch2.addConstraint(Sketcher.Constraint("Tangent", 77, 2, 78, 1))
sketch2.addConstraint(Sketcher.Constraint("Tangent", 78, 2, 79, 1))
sketch2.addConstraint(Sketcher.Constraint("Coincident", 79, 2, 80, 1))
sketch2.addConstraint(Sketcher.Constraint("Coincident", 80, 2, 81, 1))
sketch2.addConstraint(Sketcher.Constraint("Coincident", 81, 2, 82, 1))
sketch2.addConstraint(Sketcher.Constraint("Coincident", 82, 2, 74, 1))
sketch2.addConstraint(Sketcher.Constraint("Vertical", 0))
sketch2.addConstraint(Sketcher.Constraint("Horizontal", 1))
sketch2.addConstraint(Sketcher.Constraint("Vertical", 2))
sketch2.addConstraint(Sketcher.Constraint("Horizontal", 3))
sketch2.addConstraint(Sketcher.Constraint("Horizontal", 6))
sketch2.addConstraint(Sketcher.Constraint("Horizontal", 10))
sketch2.addConstraint(Sketcher.Constraint("Vertical", 11))
sketch2.addConstraint(Sketcher.Constraint("Horizontal", 12))
sketch2.addConstraint(Sketcher.Constraint("Vertical", 13))
sketch2.addConstraint(Sketcher.Constraint("Horizontal", 14))
sketch2.addConstraint(Sketcher.Constraint("Vertical", 15))
sketch2.addConstraint(Sketcher.Constraint("Horizontal", 16))
sketch2.addConstraint(Sketcher.Constraint("Vertical", 17))
sketch2.addConstraint(Sketcher.Constraint("Horizontal", 18))
sketch2.addConstraint(Sketcher.Constraint("Vertical", 19))
sketch2.addConstraint(Sketcher.Constraint("Horizontal", 20))
sketch2.addConstraint(Sketcher.Constraint("Vertical", 21))
sketch2.addConstraint(Sketcher.Constraint("Horizontal", 22))
sketch2.addConstraint(Sketcher.Constraint("Vertical", 23))
sketch2.addConstraint(Sketcher.Constraint("Horizontal", 24))
sketch2.addConstraint(Sketcher.Constraint("Vertical", 25))
sketch2.addConstraint(Sketcher.Constraint("Horizontal", 26))
sketch2.addConstraint(Sketcher.Constraint("Vertical", 27))
sketch2.addConstraint(Sketcher.Constraint("Horizontal", 28))
sketch2.addConstraint(Sketcher.Constraint("Vertical", 29))
sketch2.addConstraint(Sketcher.Constraint("Horizontal", 30))
sketch2.addConstraint(Sketcher.Constraint("Vertical", 32))
sketch2.addConstraint(Sketcher.Constraint("Vertical", 35))
sketch2.addConstraint(Sketcher.Constraint("Horizontal", 36))
sketch2.addConstraint(Sketcher.Constraint("Vertical", 37))
sketch2.addConstraint(Sketcher.Constraint("Horizontal", 38))
sketch2.addConstraint(Sketcher.Constraint("Vertical", 39))
sketch2.addConstraint(Sketcher.Constraint("Horizontal", 40))
sketch2.addConstraint(Sketcher.Constraint("Vertical", 41))
sketch2.addConstraint(Sketcher.Constraint("Vertical", 43))
sketch2.addConstraint(Sketcher.Constraint("Horizontal", 45))
sketch2.addConstraint(Sketcher.Constraint("Vertical", 49))
sketch2.addConstraint(Sketcher.Constraint("Horizontal", 50))
sketch2.addConstraint(Sketcher.Constraint("Vertical", 51))
sketch2.addConstraint(Sketcher.Constraint("Horizontal", 52))
sketch2.addConstraint(Sketcher.Constraint("Vertical", 53))
sketch2.addConstraint(Sketcher.Constraint("Horizontal", 54))
sketch2.addConstraint(Sketcher.Constraint("Vertical", 55))
sketch2.addConstraint(Sketcher.Constraint("Vertical", 58))
sketch2.addConstraint(Sketcher.Constraint("Vertical", 60))
sketch2.addConstraint(Sketcher.Constraint("Horizontal", 61))
sketch2.addConstraint(Sketcher.Constraint("Vertical", 62))
sketch2.addConstraint(Sketcher.Constraint("Horizontal", 63))
sketch2.addConstraint(Sketcher.Constraint("Vertical", 64))
sketch2.addConstraint(Sketcher.Constraint("Horizontal", 65))
sketch2.addConstraint(Sketcher.Constraint("Vertical", 66))
sketch2.addConstraint(Sketcher.Constraint("Horizontal", 67))
sketch2.addConstraint(Sketcher.Constraint("Vertical", 68))
sketch2.addConstraint(Sketcher.Constraint("Horizontal", 69))
sketch2.addConstraint(Sketcher.Constraint("Vertical", 70))
sketch2.addConstraint(Sketcher.Constraint("Horizontal", 71))
sketch2.addConstraint(Sketcher.Constraint("Vertical", 72))
sketch2.addConstraint(Sketcher.Constraint("Horizontal", 73))
sketch2.addConstraint(Sketcher.Constraint("Horizontal", 74))
sketch2.addConstraint(Sketcher.Constraint("Vertical", 75))
sketch2.addConstraint(Sketcher.Constraint("Vertical", 80))
sketch2.addConstraint(Sketcher.Constraint("Horizontal", 81))
sketch2.addConstraint(Sketcher.Constraint("Vertical", 82))
sketch2.addConstraint(Sketcher.Constraint("Coincident", 7, 3, 4, 3))
sketch2.addConstraint(Sketcher.Constraint("Coincident", 9, 3, 4, 3))
sketch2.addConstraint(Sketcher.Constraint("Coincident", 42, 3, 33, 3))
sketch2.addConstraint(Sketcher.Constraint("Coincident", 44, 3, 31, 3))
sketch2.addConstraint(Sketcher.Constraint("Coincident", 46, 3, 31, 3))
sketch2.addConstraint(Sketcher.Constraint("Coincident", 56, 3, 48, 3))
sketch2.addConstraint(Sketcher.Constraint("Coincident", 59, 3, 48, 3))
sketch2.addConstraint(Sketcher.Constraint("Coincident", 83, 3, 76, 3))
sketch2.addConstraint(Sketcher.Constraint("Coincident", 84, 3, 78, 3))
sketch2.addConstraint(Sketcher.Constraint("Equal", 4, 5))
sketch2.addConstraint(Sketcher.Constraint("Equal", 9, 31))
sketch2.addConstraint(Sketcher.Constraint("Equal", 31, 33))
sketch2.addConstraint(Sketcher.Constraint("Equal", 33, 34))
sketch2.addConstraint(Sketcher.Constraint("Equal", 5, 42))
sketch2.addConstraint(Sketcher.Constraint("Equal", 47, 48))
sketch2.addConstraint(Sketcher.Constraint("Equal", 44, 59))
sketch2.addConstraint(Sketcher.Constraint("Equal", 57, 76))
sketch2.addConstraint(Sketcher.Constraint("Equal", 76, 77))
sketch2.addConstraint(Sketcher.Constraint("Equal", 77, 78))
sketch2.addConstraint(Sketcher.Constraint("Equal", 78, 79))
sketch2.addConstraint(Sketcher.Constraint("Equal", 59, 83))
sketch2.addConstraint(Sketcher.Constraint("Equal", 83, 84))
sketch2.addConstraint(Sketcher.Constraint("Horizontal", 9, 3, 33, 3))
sketch2.addConstraint(Sketcher.Constraint("Horizontal", 47, 3, 48, 3))
sketch2.addConstraint(Sketcher.Constraint("Horizontal", 42, 3, 76, 3))
sketch2.addConstraint(Sketcher.Constraint("Horizontal", 59, 3, 78, 3))
sketch2.addConstraint(Sketcher.Constraint("Horizontal", 83, 3, 4, 1))
sketch2.addConstraint(Sketcher.Constraint("Horizontal", 4, 1, 5, 1))
sketch2.addConstraint(Sketcher.Constraint("Horizontal", 6, 2, 7, 2))
sketch2.addConstraint(Sketcher.Constraint("Horizontal", 3, 2, 8, 2))
sketch2.addConstraint(Sketcher.Constraint("Horizontal", 10, 2, 13, 2))
sketch2.addConstraint(Sketcher.Constraint("Horizontal", 12, 2, 15, 2))
sketch2.addConstraint(Sketcher.Constraint("Horizontal", 1, 2, 17, 2))
sketch2.addConstraint(Sketcher.Constraint("Horizontal", 8, 2, 23, 2))
sketch2.addConstraint(Sketcher.Constraint("Horizontal", 22, 2, 25, 2))
sketch2.addConstraint(Sketcher.Constraint("Horizontal", 18, 2, 27, 2))
sketch2.addConstraint(Sketcher.Constraint("Horizontal", 20, 2, 29, 2))
sketch2.addConstraint(Sketcher.Constraint("Horizontal", 33, 2, 34, 2))
sketch2.addConstraint(Sketcher.Constraint("Horizontal", 30, 2, 35, 2))
sketch2.addConstraint(Sketcher.Constraint("Horizontal", 14, 2, 37, 2))
sketch2.addConstraint(Sketcher.Constraint("Horizontal", 24, 2, 39, 2))
sketch2.addConstraint(Sketcher.Constraint("Horizontal", 43, 2, 44, 1))
sketch2.addConstraint(Sketcher.Constraint("Horizontal", 46, 2, 47, 2))
sketch2.addConstraint(Sketcher.Constraint("Horizontal", 36, 2, 49, 2))
sketch2.addConstraint(Sketcher.Constraint("Horizontal", 40, 2, 51, 2))
sketch2.addConstraint(Sketcher.Constraint("Horizontal", 50, 2, 53, 2))
sketch2.addConstraint(Sketcher.Constraint("Horizontal", 47, 2, 56, 2))
sketch2.addConstraint(Sketcher.Constraint("Horizontal", 56, 2, 57, 2))
sketch2.addConstraint(Sketcher.Constraint("Horizontal", 38, 2, 60, 2))
sketch2.addConstraint(Sketcher.Constraint("Horizontal", 61, 2, 62, 2))
sketch2.addConstraint(Sketcher.Constraint("Horizontal", 16, 2, 64, 2))
sketch2.addConstraint(Sketcher.Constraint("Horizontal", 28, 2, 66, 2))
sketch2.addConstraint(Sketcher.Constraint("Horizontal", 54, 2, 68, 2))
sketch2.addConstraint(Sketcher.Constraint("Horizontal", 26, 2, 70, 2))
sketch2.addConstraint(Sketcher.Constraint("Horizontal", 52, 2, 72, 2))
sketch2.addConstraint(Sketcher.Constraint("Horizontal", 69, 2, 74, 2))
sketch2.addConstraint(Sketcher.Constraint("Horizontal", 34, 2, 75, 2))
sketch2.addConstraint(Sketcher.Constraint("Horizontal", 42, 1, 76, 2))
sketch2.addConstraint(Sketcher.Constraint("Horizontal", 59, 1, 78, 2))
sketch2.addConstraint(Sketcher.Constraint("Horizontal", 57, 2, 79, 2))
sketch2.addConstraint(Sketcher.Constraint("Horizontal", 67, 2, 80, 2))
sketch2.addConstraint(Sketcher.Constraint("Vertical", 77, 3, 78, 3))
sketch2.addConstraint(Sketcher.Constraint("Vertical", 2, 2, 6, 2))
sketch2.addConstraint(Sketcher.Constraint("Vertical", 0, 2, 7, 2))
sketch2.addConstraint(Sketcher.Constraint("Vertical", 5, 1, 10, 2))
sketch2.addConstraint(Sketcher.Constraint("Vertical", 17, 2, 20, 2))
sketch2.addConstraint(Sketcher.Constraint("Vertical", 15, 2, 22, 2))
sketch2.addConstraint(Sketcher.Constraint("Vertical", 47, 3, 38, 2))
sketch2.addConstraint(Sketcher.Constraint("Vertical", 35, 2, 40, 2))
sketch2.addConstraint(Sketcher.Constraint("Vertical", 37, 2, 45, 2))
sketch2.addConstraint(Sketcher.Constraint("Vertical", 44, 1, 46, 2))
sketch2.addConstraint(Sketcher.Constraint("Vertical", 53, 2, 56, 2))
sketch2.addConstraint(Sketcher.Constraint("Vertical", 51, 2, 57, 2))
sketch2.addConstraint(Sketcher.Constraint("Vertical", 66, 2, 69, 2))
sketch2.addConstraint(Sketcher.Constraint("Vertical", 64, 2, 71, 2))
sketch2.addConstraint(Sketcher.Constraint("Equal", 6, 10))
sketch2.addConstraint(Sketcher.Constraint("Equal", 3, 14))
sketch2.addConstraint(Sketcher.Constraint("Equal", 12, 16))
sketch2.addConstraint(Sketcher.Constraint("Equal", 1, 18))
sketch2.addConstraint(Sketcher.Constraint("Equal", 22, 26))
sketch2.addConstraint(Sketcher.Constraint("Equal", 10, 28))
sketch2.addConstraint(Sketcher.Constraint("Equal", 61, 63))
sketch2.addConstraint(Sketcher.Constraint("Equal", 26, 65))
sketch2.addConstraint(Sketcher.Constraint("Equal", 30, 67))
sketch2.addConstraint(Sketcher.Constraint("Equal", 54, 74))
sketch2.addConstraint(Sketcher.Constraint("Equal", 81, 0))
sketch2.addConstraint(Sketcher.Constraint("Equal", 71, 11))
sketch2.addConstraint(Sketcher.Constraint("Equal", 17, 21))
sketch2.addConstraint(Sketcher.Constraint("Equal", 73, 23))
sketch2.addConstraint(Sketcher.Constraint("Diameter", 83, 5.0))
sketch2.addConstraint(Sketcher.Constraint("DistanceX", 4, 3, -1, 1, 6.0))
sketch2.addConstraint(Sketcher.Constraint("DistanceY", -1, 1, 4, 3, 6.0))
sketch2.addConstraint(Sketcher.Constraint("DistanceX", 31, 3, -1, 1, 39.0))
sketch2.addConstraint(Sketcher.Constraint("DistanceX", 48, 3, -1, 1, 50.0))
sketch2.addConstraint(Sketcher.Constraint("DistanceX", 76, 3, -1, 1, 72.0))
sketch2.addConstraint(Sketcher.Constraint("DistanceX", 16, 2, -1, 1, 12.0))
sketch2.addConstraint(Sketcher.Constraint("DistanceX", 25, 2, -1, 1, 23.0))
sketch2.addConstraint(Sketcher.Constraint("DistanceX", 65, 2, -1, 1, 56.0))
pad2 = body.newObject("PartDesign::Pad", "Pad001")
pad2.Profile = sketch2
pad2.Length = 2

doc.recompute()
